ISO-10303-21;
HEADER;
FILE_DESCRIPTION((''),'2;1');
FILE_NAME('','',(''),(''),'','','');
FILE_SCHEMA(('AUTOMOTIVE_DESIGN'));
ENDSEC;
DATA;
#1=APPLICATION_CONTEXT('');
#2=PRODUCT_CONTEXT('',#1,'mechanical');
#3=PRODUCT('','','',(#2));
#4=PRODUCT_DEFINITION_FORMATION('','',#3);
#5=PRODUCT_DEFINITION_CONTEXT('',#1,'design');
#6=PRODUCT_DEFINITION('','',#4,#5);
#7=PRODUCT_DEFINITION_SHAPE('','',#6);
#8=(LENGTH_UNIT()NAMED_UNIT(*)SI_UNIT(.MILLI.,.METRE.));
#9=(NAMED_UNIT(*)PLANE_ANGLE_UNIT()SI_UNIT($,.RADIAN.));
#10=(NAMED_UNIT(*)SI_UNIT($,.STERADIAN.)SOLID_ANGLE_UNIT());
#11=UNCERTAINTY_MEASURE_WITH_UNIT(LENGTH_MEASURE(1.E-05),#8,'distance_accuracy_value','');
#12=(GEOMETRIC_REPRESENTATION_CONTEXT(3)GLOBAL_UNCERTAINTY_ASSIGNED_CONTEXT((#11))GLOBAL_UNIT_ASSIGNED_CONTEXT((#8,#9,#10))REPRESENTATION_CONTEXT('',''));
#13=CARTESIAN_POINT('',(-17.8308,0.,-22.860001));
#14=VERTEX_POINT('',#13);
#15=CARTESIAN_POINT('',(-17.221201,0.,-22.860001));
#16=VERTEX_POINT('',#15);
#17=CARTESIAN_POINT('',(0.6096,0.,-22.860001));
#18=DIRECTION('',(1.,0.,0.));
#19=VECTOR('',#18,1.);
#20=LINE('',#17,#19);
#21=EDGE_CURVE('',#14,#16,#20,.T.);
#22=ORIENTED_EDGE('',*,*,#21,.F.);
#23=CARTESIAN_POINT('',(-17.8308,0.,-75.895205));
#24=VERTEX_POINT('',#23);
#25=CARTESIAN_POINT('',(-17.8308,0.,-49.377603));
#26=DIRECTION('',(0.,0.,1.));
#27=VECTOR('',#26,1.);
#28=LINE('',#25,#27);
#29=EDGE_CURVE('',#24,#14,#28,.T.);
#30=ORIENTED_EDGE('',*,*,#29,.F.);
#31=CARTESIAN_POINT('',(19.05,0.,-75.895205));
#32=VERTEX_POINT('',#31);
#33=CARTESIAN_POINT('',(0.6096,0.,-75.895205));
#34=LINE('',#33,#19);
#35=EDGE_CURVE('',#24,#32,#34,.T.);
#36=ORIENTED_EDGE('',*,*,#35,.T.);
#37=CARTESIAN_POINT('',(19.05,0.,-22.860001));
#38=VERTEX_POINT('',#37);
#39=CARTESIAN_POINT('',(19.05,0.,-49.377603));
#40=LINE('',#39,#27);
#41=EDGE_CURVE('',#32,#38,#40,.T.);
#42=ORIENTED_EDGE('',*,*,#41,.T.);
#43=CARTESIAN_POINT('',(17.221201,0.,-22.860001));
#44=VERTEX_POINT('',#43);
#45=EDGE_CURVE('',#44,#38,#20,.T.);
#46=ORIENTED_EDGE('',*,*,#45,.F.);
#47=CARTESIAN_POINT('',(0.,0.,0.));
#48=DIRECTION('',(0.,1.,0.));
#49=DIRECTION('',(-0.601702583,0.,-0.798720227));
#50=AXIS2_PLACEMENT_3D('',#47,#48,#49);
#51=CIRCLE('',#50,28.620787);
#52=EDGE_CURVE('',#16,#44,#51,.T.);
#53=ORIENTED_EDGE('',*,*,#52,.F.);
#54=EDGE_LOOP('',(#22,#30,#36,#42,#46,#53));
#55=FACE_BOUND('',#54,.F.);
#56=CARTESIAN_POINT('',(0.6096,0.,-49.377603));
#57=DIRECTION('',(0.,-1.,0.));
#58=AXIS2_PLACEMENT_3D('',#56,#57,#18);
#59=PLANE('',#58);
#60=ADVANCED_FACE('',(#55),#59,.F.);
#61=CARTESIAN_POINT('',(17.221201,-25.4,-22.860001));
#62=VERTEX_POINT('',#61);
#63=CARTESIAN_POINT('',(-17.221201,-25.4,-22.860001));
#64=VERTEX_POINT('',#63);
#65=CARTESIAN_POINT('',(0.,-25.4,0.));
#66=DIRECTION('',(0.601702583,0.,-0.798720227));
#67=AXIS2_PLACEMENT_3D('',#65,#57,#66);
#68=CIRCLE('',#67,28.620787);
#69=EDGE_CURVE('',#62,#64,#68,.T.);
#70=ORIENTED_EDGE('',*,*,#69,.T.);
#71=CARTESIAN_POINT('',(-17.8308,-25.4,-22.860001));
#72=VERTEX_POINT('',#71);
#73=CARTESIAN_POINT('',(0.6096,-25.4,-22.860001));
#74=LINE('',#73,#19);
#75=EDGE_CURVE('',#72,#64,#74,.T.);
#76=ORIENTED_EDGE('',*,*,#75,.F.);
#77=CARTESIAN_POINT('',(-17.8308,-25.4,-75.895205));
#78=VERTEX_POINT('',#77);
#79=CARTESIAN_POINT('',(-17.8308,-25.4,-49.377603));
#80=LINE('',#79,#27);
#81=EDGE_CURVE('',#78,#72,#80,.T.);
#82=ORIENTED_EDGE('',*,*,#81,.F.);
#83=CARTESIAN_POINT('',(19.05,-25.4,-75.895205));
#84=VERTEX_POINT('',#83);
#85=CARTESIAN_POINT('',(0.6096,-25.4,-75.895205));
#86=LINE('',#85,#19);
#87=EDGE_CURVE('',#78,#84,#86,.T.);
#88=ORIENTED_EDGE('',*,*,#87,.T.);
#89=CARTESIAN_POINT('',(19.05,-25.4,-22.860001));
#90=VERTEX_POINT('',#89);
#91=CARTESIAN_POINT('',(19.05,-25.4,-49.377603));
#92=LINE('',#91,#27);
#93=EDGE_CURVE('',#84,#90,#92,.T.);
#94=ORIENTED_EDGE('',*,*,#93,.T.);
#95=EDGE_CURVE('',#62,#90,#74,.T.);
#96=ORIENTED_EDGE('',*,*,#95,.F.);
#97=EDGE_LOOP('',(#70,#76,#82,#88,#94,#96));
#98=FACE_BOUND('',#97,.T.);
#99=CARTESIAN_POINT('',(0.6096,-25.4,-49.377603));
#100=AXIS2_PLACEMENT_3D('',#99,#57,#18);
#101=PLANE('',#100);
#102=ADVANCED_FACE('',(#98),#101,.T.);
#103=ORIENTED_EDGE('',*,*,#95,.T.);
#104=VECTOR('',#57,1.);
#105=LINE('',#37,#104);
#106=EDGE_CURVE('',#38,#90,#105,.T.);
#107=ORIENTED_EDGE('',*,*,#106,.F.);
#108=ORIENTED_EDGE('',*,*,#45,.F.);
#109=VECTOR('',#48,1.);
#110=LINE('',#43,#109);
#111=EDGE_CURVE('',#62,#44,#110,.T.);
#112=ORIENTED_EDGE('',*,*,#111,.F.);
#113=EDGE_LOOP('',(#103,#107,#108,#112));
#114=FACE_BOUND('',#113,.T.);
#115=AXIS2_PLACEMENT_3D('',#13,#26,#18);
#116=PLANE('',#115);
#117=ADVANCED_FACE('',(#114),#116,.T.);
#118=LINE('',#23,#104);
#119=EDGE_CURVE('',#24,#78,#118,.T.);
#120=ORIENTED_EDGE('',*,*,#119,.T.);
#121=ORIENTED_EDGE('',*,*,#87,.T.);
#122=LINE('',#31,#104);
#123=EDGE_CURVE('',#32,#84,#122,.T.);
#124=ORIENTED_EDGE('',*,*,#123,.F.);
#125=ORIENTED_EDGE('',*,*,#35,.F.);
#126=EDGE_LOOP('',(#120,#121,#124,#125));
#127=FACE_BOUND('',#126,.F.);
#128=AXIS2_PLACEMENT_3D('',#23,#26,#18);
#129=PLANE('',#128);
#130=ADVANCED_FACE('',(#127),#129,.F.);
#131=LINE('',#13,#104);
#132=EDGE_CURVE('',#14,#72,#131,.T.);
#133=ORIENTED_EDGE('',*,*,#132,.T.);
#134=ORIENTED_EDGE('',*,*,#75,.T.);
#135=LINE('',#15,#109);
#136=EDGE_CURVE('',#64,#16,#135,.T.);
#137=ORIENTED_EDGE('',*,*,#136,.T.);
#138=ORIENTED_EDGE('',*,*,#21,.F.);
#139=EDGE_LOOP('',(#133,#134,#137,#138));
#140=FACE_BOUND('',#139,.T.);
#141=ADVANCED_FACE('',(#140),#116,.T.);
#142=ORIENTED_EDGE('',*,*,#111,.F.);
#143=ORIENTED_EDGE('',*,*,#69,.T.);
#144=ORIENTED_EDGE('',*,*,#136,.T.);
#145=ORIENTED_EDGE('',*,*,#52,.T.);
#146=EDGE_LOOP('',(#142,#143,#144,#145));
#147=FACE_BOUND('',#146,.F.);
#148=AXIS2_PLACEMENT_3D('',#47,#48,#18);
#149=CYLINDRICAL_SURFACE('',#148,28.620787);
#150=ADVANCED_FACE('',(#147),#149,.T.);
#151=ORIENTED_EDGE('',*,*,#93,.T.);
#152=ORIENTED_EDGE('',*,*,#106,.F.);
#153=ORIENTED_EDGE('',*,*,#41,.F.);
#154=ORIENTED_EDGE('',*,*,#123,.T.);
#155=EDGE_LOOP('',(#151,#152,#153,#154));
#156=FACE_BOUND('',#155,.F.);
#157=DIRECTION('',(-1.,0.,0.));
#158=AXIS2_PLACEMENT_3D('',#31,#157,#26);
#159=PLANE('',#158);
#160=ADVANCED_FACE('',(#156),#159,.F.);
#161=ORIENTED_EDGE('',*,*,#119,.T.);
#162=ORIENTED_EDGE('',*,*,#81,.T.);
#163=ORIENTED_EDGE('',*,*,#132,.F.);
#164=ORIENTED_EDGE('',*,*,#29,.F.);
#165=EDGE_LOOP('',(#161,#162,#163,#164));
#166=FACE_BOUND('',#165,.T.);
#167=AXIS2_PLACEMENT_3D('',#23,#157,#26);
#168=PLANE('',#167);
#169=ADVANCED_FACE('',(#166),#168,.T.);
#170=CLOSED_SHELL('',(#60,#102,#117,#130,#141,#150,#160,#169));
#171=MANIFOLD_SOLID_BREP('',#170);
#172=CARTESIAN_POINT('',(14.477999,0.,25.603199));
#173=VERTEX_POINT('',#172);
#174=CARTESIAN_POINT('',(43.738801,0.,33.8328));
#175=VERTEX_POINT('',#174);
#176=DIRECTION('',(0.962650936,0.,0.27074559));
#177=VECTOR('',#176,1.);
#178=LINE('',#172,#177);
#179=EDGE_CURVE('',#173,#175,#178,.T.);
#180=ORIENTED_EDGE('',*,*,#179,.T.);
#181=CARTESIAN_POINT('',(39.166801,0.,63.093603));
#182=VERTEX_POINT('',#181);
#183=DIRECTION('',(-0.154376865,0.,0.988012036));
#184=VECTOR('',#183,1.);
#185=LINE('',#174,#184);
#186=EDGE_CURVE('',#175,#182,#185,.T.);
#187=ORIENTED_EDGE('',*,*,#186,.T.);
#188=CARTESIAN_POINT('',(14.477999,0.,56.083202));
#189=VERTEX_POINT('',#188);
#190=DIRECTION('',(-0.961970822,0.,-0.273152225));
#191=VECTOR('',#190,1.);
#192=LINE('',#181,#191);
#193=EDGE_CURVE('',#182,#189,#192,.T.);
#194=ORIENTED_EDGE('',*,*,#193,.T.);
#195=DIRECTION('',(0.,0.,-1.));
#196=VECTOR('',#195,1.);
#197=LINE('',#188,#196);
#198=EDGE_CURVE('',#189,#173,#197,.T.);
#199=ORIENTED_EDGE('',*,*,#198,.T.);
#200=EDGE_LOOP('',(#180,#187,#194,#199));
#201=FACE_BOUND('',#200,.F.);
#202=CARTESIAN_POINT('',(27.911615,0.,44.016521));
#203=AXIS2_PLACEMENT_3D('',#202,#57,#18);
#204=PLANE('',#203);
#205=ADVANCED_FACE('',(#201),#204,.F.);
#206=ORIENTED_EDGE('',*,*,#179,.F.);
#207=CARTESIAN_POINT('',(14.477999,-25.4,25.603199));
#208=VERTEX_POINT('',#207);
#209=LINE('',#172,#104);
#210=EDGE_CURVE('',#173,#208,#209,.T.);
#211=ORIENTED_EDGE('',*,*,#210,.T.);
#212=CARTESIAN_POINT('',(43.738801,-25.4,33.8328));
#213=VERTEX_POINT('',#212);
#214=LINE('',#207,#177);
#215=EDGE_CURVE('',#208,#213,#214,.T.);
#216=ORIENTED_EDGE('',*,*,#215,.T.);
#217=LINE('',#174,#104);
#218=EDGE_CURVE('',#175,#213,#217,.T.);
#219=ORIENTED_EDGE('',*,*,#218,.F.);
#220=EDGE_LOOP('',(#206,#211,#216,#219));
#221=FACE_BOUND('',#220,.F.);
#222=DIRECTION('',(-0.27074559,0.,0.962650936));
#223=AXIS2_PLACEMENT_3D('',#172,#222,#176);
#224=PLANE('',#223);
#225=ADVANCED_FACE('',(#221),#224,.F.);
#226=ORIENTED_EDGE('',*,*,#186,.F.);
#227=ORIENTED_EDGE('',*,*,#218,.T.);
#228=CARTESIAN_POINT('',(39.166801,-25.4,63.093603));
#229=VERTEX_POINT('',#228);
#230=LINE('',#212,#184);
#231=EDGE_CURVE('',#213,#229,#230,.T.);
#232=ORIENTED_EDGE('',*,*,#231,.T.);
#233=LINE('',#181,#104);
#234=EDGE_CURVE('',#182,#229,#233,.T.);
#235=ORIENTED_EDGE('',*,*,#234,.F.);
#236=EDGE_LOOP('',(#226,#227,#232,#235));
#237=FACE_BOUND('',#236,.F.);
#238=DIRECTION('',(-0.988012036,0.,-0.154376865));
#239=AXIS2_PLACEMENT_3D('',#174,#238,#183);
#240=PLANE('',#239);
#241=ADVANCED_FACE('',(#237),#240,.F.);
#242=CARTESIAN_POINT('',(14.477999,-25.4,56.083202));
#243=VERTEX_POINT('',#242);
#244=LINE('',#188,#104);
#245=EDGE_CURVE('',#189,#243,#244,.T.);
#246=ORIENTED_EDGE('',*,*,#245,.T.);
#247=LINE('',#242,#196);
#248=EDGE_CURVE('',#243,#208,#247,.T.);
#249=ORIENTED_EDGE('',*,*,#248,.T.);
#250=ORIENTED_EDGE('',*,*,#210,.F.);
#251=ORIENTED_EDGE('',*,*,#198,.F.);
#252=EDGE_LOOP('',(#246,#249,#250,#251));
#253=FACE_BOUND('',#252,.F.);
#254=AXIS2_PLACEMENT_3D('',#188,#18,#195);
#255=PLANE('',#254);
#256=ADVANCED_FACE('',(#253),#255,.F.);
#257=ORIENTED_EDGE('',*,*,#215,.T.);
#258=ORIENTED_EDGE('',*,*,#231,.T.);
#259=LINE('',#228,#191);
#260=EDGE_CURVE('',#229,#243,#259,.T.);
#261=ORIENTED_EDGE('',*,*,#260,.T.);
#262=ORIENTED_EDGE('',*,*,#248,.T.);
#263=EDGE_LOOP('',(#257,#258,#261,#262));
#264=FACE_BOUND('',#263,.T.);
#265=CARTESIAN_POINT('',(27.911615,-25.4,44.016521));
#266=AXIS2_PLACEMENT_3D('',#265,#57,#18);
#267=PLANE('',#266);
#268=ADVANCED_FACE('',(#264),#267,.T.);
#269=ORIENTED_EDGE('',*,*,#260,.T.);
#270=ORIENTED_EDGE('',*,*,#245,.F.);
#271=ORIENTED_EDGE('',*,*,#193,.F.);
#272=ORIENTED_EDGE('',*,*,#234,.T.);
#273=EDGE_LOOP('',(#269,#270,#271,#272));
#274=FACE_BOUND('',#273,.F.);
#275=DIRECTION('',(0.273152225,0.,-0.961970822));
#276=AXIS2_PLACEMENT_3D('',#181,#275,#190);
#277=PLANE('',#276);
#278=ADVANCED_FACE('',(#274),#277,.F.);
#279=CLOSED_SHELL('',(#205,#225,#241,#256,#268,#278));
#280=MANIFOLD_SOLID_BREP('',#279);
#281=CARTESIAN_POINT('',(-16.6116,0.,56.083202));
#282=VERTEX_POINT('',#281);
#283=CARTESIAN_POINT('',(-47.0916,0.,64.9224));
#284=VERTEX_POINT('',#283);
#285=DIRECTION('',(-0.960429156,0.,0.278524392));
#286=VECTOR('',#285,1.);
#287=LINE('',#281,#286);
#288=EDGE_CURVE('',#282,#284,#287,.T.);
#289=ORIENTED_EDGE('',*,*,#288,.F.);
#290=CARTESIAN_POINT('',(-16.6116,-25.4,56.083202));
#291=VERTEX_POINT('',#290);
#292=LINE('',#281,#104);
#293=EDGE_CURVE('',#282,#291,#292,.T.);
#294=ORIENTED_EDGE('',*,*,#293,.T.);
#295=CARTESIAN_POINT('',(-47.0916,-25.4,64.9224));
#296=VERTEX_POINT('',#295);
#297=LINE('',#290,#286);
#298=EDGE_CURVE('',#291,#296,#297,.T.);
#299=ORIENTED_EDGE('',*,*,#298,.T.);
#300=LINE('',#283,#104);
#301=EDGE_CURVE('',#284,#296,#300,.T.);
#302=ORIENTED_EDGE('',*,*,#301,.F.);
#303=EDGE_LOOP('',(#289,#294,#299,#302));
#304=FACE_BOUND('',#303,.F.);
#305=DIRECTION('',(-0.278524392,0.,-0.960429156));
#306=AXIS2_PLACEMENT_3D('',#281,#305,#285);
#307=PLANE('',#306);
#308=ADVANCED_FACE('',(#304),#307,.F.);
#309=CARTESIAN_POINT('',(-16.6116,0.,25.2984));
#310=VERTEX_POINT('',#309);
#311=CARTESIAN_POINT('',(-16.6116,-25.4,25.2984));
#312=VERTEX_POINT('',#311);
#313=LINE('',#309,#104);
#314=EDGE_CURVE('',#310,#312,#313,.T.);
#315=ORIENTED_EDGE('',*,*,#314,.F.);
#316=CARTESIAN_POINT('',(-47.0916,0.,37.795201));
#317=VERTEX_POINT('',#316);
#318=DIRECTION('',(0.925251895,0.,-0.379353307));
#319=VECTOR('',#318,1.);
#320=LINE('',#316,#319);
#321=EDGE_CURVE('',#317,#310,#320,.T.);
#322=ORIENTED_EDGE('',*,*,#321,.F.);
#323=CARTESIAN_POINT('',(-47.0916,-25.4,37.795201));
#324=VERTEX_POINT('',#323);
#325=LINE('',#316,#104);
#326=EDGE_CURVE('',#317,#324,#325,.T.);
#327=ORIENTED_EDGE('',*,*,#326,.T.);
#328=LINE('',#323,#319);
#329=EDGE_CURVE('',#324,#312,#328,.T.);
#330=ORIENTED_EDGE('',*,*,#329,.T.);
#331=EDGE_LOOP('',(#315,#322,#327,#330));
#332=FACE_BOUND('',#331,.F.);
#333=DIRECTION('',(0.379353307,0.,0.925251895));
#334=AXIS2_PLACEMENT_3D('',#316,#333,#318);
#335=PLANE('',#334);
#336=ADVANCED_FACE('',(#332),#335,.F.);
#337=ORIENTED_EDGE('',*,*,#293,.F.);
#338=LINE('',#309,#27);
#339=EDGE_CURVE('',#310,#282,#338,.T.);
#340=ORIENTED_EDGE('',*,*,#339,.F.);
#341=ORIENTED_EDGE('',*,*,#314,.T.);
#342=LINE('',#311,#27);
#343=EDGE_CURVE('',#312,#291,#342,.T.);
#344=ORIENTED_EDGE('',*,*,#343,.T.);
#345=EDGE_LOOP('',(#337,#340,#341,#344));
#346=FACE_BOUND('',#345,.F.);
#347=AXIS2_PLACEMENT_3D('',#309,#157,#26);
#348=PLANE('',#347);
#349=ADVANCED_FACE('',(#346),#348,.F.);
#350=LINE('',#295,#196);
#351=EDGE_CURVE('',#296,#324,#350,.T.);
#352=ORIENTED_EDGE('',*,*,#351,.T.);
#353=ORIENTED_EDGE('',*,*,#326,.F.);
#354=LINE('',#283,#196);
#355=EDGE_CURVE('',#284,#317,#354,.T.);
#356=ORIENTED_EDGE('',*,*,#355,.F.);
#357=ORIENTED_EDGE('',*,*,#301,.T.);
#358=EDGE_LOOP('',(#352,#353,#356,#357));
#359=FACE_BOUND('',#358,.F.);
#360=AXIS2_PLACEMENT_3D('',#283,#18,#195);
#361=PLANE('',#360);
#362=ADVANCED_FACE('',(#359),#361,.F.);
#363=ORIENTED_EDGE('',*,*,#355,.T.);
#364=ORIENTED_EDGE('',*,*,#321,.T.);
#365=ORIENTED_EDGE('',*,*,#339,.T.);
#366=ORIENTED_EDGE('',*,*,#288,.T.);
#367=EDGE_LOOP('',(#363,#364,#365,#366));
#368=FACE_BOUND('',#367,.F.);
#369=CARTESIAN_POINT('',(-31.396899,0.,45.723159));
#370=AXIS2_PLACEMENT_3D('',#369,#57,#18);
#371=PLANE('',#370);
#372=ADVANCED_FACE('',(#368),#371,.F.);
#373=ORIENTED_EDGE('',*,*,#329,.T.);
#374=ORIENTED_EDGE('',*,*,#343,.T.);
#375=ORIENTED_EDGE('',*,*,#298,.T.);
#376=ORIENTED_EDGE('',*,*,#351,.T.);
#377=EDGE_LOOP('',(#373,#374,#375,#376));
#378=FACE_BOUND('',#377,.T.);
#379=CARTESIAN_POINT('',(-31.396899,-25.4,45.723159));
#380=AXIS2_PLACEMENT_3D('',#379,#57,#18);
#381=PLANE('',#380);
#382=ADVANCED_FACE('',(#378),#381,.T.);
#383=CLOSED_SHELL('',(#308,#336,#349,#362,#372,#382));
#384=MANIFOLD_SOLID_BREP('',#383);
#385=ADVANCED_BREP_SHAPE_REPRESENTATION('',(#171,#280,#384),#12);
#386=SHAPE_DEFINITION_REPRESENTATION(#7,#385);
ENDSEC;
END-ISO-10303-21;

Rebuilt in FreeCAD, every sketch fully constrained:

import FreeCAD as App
import Part
import Sketcher
Q = App.Units.Quantity


def add_polygon(sketch, points):
    """Adds a closed chain of lines whose ends are joined by coincident constraints."""
    first, n = sketch.GeometryCount, len(points)
    for a, b in zip(points, points[1:] + points[:1]):
        sketch.addGeometry(Part.LineSegment(App.Vector(*a, 0), App.Vector(*b, 0)), False)
    for i in range(n):
        sketch.addConstraint(Sketcher.Constraint("Coincident", first + i, 2, first + (i + 1) % n, 1))

doc = App.newDocument("Part")
body = doc.addObject("PartDesign::Body", "Body")

sketch1 = body.newObject("Sketcher::SketchObject", "Sketch")
sketch1.AttachmentSupport = (doc.getObject("XZ_Plane"), [""])
sketch1.MapMode = "FlatFace"
sketch1.addGeometry(Part.Circle(App.Vector(0, 0, 0), App.Vector(0, 0, 1), 29), False)
sketch1.addConstraint([
    Sketcher.Constraint("Coincident", 0, 3, -1, 1),
    Sketcher.Constraint("Diameter", 0, Q("57.241574 mm")),
])
pad1 = body.newObject("PartDesign::Pad", "Pad")
pad1.Profile = sketch1
pad1.Length = Q("1 in")

sketch2 = body.newObject("Sketcher::SketchObject", "Sketch001")
sketch2.AttachmentSupport = (doc.getObject("XZ_Plane"), [""])
sketch2.MapMode = "FlatFace"
add_polygon(sketch2, [(-18, -23), (-18, -76), (19, -76), (19, -23)])
sketch2.addConstraint([
    Sketcher.Constraint("Vertical", 0),
    Sketcher.Constraint("Horizontal", 1),
    Sketcher.Constraint("Vertical", 2),
    Sketcher.Constraint("Horizontal", 3),
    Sketcher.Constraint("DistanceY", 2, 2, -1, 1, Q("0.9000001 in")),
    Sketcher.Constraint("DistanceX", 1, 1, 1, 2, Q("1.452 in")),
    Sketcher.Constraint("DistanceY", 0, 2, 0, 1, Q("2.0880001 in")),
    Sketcher.Constraint("DistanceX", -1, 1, 1, 2, Q("0.75 in")),
])
pad2 = body.newObject("PartDesign::Pad", "Pad001")
pad2.Profile = sketch2
pad2.Length = Q("1 in")
body2 = doc.addObject("PartDesign::Body", "Body001")

sketch3 = body2.newObject("Sketcher::SketchObject", "Sketch002")
sketch3.AttachmentSupport = (doc.getObject("XZ_Plane001"), [""])
sketch3.MapMode = "FlatFace"
add_polygon(sketch3, [(-47, 38), (-17, 25), (-17, 56), (-47, 65)])
sketch3.addConstraint([
    Sketcher.Constraint("Vertical", 1),
    Sketcher.Constraint("Vertical", 3),
    Sketcher.Constraint("DistanceX", 2, 2, 1, 2, Q("1.2 in")),
    Sketcher.Constraint("DistanceY", 1, 1, 1, 2, Q("1.2120001 in")),
    Sketcher.Constraint("DistanceY", 3, 2, 3, 1, Q("1.068 in")),
    Sketcher.Constraint("DistanceY", 0, 2, 2, 2, Q("1.56 in")),
    Sketcher.Constraint("DistanceX", 0, 2, -1, 1, Q("0.654 in")),
    Sketcher.Constraint("DistanceY", -1, 1, 0, 2, Q("0.996 in")),
])
pad3 = body2.newObject("PartDesign::Pad", "Pad002")
pad3.Profile = sketch3
pad3.Length = Q("1 in")
body3 = doc.addObject("PartDesign::Body", "Body002")

sketch4 = body3.newObject("Sketcher::SketchObject", "Sketch003")
sketch4.AttachmentSupport = (doc.getObject("XZ_Plane002"), [""])
sketch4.MapMode = "FlatFace"
add_polygon(sketch4, [(14, 56), (14, 26), (44, 34), (39, 63)])
sketch4.addConstraint([
    Sketcher.Constraint("Vertical", 0),
    Sketcher.Constraint("DistanceY", 0, 2, 0, 1, Q("1.2000001 in")),
    Sketcher.Constraint("DistanceX", -1, 1, 0, 2, Q("0.57 in")),
    Sketcher.Constraint("DistanceX", 2, 2, 1, 2, Q("0.18 in")),
    Sketcher.Constraint("DistanceY", -1, 1, 0, 2, Q("1.008 in")),
    Sketcher.Constraint("DistanceX", -1, 1, 1, 2, Q("1.722 in")),
    Sketcher.Constraint("DistanceY", -1, 1, 1, 2, Q("1.332 in")),
    Sketcher.Constraint("DistanceY", -1, 1, 2, 2, Q("2.4840001 in")),
])
pad4 = body3.newObject("PartDesign::Pad", "Pad003")
pad4.Profile = sketch4
pad4.Length = Q("1 in")

doc.recompute()
